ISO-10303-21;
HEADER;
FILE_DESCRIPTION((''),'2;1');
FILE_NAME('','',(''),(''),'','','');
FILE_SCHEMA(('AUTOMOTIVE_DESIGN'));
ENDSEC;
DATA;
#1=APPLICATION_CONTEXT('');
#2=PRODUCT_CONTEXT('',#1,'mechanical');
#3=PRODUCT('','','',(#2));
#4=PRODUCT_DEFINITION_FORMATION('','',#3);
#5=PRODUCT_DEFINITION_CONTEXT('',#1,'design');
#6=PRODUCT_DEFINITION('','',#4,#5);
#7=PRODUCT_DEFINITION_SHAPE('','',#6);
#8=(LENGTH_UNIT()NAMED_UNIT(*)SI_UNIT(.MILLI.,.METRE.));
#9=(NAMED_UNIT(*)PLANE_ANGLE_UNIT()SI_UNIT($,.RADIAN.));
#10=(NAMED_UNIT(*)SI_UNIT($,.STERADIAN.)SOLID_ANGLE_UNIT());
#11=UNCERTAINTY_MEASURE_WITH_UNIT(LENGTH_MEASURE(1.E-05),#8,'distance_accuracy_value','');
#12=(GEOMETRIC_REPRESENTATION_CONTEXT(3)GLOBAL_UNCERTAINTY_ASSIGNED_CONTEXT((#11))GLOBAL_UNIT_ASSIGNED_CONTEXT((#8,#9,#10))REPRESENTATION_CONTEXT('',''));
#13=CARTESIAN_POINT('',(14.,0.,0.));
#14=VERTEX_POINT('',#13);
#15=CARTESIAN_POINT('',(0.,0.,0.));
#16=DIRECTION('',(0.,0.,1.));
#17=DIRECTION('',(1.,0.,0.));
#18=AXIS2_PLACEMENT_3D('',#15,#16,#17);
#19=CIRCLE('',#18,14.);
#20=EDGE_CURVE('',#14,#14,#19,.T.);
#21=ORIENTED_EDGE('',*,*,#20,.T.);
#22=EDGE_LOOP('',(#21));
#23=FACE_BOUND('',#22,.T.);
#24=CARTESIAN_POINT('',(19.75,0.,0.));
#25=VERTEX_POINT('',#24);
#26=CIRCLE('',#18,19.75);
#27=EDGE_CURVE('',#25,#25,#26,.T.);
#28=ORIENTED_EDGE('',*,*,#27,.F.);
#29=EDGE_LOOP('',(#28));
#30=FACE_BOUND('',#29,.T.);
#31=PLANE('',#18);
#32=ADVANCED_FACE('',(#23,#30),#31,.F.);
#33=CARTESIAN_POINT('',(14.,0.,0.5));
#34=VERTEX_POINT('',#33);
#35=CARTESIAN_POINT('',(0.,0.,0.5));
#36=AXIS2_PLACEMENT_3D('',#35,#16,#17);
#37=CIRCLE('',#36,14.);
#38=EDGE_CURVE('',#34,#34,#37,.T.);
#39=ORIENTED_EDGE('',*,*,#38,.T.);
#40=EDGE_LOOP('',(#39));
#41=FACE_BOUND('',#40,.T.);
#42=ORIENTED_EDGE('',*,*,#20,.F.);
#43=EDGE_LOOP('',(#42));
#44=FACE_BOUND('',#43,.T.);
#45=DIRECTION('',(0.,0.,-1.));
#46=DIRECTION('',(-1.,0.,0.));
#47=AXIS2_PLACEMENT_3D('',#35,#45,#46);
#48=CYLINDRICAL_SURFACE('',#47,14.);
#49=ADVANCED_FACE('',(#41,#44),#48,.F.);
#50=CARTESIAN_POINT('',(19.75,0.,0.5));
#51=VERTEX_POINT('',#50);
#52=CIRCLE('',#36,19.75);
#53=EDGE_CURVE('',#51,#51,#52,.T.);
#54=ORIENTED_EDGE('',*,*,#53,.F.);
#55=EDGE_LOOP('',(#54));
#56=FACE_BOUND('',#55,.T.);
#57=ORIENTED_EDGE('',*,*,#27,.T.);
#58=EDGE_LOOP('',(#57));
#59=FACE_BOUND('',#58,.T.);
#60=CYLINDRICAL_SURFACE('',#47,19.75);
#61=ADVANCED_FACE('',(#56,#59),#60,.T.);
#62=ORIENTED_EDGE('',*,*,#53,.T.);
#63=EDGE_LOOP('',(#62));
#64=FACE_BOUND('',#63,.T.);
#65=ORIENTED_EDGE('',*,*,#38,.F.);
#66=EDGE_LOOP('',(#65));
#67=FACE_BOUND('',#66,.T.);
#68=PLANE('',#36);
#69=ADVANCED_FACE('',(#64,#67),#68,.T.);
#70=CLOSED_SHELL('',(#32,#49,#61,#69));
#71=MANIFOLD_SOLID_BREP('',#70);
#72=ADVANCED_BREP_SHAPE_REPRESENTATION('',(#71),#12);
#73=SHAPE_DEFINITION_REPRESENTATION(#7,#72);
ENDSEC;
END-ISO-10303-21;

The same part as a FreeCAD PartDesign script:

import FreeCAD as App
import Part
import Sketcher

V = App.Vector
Q = App.Units.Quantity

doc = App.newDocument("Part")
params = doc.addObject("Spreadsheet::Sheet", "Params")
for row, (alias, value) in enumerate([
    ("sketch1_diameter", "28 mm"),
    ("sketch1_diameter2", "39.5 mm"),
    ("pad1_length", "0.5 mm"),
], start=1):
    params.set(f"A{row}", alias)
    params.set(f"B{row}", "=" + value)
    params.setAlias(f"B{row}", alias)

body = doc.addObject("PartDesign::Body", "Body")

sketch1 = body.newObject("Sketcher::SketchObject", "Sketch")
sketch1.AttachmentSupport = (doc.getObject("XY_Plane"), [""])
sketch1.MapMode = "FlatFace"
sketch1.addGeometry(Part.Circle(V(0, 0, 0), V(0, 0, 1), 19.75), False)
sketch1.addGeometry(Part.Circle(V(0, 0, 0), V(0, 0, 1), 14), False)
sketch1.addConstraint(Sketcher.Constraint("Coincident", 0, 3, -1, 1))
sketch1.addConstraint(Sketcher.Constraint("Coincident", 1, 3, -1, 1))
sketch1.addConstraint(Sketcher.Constraint("Diameter", 1, Q("28 mm")))
sketch1.addConstraint(Sketcher.Constraint("Diameter", 0, Q("39.5 mm")))
sketch1.setExpression("Constraints[2]", "Params.sketch1_diameter")
sketch1.setExpression("Constraints[3]", "Params.sketch1_diameter2")
pad1 = body.newObject("PartDesign::Pad", "Pad")
pad1.Profile = sketch1
pad1.setExpression("Length", "Params.pad1_length")

doc.recompute()
